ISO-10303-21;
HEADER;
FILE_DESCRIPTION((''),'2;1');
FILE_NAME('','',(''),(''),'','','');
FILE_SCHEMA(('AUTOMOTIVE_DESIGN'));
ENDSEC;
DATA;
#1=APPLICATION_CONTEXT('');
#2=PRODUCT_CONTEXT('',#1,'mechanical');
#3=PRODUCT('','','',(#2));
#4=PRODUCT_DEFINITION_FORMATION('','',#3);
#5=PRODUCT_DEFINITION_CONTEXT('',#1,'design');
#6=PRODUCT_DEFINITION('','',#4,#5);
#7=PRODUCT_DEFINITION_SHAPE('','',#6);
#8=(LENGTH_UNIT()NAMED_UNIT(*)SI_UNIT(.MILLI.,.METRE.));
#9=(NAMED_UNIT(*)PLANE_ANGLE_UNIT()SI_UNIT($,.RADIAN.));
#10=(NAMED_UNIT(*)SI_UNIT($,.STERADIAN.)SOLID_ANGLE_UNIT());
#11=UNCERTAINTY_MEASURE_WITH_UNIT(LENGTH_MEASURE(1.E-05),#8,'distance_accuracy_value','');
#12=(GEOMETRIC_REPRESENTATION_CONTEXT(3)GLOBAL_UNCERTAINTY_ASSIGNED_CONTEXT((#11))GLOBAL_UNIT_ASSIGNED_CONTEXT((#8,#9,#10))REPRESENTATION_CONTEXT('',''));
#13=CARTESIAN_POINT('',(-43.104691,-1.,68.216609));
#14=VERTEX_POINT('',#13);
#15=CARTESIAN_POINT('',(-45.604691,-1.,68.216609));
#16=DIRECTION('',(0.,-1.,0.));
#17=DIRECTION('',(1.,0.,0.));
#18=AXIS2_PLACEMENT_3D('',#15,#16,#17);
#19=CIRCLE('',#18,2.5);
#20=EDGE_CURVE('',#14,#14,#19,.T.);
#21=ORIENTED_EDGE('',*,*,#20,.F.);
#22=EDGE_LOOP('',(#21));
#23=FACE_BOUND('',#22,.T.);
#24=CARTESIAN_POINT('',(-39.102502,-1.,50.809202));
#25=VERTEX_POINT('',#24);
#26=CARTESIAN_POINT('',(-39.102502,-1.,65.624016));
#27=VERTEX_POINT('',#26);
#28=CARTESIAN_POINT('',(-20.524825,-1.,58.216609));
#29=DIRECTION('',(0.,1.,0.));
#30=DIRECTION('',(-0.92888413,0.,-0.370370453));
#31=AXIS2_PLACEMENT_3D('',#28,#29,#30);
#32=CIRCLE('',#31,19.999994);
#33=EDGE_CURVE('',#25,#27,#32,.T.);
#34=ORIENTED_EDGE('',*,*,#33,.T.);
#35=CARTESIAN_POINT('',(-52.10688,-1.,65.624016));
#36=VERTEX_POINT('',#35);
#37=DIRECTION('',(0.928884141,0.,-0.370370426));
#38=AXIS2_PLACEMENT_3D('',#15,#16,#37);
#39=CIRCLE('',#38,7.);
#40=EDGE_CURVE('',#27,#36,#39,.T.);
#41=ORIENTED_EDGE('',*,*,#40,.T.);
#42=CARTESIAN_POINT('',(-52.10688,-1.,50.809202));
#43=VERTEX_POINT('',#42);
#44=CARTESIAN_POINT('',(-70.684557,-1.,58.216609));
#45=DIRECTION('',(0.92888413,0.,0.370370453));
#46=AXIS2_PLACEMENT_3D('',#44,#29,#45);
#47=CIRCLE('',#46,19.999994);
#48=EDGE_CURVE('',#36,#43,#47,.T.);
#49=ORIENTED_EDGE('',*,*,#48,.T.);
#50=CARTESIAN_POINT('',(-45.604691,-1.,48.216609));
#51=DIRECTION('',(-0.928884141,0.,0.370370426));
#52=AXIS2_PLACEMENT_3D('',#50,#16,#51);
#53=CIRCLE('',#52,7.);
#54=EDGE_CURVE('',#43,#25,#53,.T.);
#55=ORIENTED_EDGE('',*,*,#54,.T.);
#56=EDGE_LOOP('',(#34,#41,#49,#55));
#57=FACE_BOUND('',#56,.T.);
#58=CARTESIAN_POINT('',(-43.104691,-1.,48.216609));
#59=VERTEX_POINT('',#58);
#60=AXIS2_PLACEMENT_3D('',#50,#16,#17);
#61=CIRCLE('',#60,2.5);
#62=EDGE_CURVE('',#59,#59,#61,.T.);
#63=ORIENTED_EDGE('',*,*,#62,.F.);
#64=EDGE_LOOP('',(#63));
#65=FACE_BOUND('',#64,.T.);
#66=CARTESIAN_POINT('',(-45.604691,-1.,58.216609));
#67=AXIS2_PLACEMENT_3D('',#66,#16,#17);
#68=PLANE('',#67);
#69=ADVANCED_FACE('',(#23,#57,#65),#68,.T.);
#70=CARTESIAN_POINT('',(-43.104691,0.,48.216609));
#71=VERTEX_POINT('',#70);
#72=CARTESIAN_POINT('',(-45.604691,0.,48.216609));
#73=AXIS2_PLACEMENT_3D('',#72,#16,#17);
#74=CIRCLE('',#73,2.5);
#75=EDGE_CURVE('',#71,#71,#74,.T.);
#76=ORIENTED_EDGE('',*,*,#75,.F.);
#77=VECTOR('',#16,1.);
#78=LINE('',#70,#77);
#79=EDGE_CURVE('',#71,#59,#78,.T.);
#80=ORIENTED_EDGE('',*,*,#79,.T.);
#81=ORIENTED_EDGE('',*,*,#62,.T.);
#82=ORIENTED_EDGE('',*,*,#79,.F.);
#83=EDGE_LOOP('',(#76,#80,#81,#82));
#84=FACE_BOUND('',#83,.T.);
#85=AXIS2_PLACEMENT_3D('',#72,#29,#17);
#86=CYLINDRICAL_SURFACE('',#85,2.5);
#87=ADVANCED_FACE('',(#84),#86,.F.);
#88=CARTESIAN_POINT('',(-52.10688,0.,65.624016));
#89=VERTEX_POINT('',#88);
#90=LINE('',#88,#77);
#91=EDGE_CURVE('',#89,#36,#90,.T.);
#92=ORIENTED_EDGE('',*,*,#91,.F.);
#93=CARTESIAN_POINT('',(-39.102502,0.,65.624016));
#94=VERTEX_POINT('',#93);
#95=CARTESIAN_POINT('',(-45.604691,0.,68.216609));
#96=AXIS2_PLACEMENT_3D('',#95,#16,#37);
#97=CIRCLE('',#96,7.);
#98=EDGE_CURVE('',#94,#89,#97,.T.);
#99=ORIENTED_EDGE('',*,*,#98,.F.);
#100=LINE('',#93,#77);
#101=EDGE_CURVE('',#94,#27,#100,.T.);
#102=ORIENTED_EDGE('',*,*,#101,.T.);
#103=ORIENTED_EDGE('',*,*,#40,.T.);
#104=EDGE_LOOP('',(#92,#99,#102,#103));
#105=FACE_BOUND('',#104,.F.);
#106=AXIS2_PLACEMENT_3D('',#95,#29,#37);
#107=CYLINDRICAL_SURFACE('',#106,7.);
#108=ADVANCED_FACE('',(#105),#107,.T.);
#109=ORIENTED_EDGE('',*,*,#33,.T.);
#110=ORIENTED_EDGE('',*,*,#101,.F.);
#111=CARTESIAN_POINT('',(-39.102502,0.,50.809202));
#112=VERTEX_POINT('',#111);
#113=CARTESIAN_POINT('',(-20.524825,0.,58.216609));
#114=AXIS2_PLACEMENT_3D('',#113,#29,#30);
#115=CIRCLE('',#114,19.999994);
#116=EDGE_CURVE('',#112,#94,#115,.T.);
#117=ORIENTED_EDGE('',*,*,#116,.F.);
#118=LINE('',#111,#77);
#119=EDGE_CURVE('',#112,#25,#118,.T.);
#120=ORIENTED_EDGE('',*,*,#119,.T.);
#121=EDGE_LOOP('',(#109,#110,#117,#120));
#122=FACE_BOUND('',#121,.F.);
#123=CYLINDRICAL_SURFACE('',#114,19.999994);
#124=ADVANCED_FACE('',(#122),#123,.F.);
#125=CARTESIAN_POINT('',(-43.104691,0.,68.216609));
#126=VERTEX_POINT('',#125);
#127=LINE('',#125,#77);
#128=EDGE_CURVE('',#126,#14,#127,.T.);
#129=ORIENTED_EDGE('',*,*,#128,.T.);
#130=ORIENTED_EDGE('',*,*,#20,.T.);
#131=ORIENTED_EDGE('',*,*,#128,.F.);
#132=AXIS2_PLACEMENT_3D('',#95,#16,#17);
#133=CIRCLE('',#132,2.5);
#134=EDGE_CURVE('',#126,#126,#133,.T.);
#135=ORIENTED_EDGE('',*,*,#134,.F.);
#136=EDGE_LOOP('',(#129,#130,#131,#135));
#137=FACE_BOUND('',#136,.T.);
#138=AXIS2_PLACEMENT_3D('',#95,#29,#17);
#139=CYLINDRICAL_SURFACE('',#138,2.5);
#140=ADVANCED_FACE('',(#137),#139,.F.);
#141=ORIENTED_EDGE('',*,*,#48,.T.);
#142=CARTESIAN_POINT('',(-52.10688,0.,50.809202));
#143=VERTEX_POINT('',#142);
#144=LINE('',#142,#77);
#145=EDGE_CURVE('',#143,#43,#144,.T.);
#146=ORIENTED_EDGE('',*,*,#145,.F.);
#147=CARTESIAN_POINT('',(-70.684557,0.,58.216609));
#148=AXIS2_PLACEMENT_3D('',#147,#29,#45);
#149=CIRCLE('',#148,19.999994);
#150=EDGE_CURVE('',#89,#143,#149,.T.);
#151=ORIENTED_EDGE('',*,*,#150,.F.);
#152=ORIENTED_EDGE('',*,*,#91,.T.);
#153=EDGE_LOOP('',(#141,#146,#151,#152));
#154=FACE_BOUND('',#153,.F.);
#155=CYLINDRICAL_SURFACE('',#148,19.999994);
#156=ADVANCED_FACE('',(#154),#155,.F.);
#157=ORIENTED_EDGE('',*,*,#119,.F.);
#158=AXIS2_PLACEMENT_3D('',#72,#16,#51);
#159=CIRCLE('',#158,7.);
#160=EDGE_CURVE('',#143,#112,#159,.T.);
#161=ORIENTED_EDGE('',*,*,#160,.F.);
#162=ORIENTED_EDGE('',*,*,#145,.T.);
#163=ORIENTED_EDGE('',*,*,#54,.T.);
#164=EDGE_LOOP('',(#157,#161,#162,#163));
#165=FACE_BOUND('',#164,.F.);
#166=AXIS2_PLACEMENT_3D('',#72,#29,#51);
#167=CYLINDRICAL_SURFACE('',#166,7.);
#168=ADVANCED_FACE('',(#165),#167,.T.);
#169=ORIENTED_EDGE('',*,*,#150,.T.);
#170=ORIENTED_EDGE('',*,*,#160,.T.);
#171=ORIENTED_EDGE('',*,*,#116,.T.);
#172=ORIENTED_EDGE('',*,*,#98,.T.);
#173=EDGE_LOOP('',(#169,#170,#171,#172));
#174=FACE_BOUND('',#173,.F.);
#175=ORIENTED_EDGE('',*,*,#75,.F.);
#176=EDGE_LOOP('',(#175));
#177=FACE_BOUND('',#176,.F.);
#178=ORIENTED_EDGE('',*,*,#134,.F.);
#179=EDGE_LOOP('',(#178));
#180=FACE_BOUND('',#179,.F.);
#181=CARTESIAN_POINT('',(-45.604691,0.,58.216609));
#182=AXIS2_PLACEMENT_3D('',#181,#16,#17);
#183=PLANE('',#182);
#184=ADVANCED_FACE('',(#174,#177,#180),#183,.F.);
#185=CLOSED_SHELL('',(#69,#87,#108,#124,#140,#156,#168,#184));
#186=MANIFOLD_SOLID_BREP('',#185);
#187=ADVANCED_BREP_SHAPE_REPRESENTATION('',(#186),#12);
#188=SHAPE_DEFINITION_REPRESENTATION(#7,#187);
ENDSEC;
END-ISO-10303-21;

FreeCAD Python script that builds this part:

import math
import FreeCAD as App
import Part
import Sketcher

doc = App.newDocument("Part")
body = doc.addObject("PartDesign::Body", "Body")

sketch1 = body.newObject("Sketcher::SketchObject", "Sketch")
sketch1.AttachmentSupport = (doc.getObject("XZ_Plane"), [""])
sketch1.MapMode = "FlatFace"
sketch1.addGeometry([
    Part.ArcOfCircle(Part.Circle(App.Vector(-20.5, 58.2, 0), App.Vector(0, 0, 1), 20), math.radians(158), math.radians(202)),
    Part.ArcOfCircle(Part.Circle(App.Vector(-45.6, 68.2, 0), App.Vector(0, 0, 1), 7), math.radians(-22), math.radians(202)),
    Part.ArcOfCircle(Part.Circle(App.Vector(-70.7, 58.2, 0), App.Vector(0, 0, 1), 20), math.radians(-22), math.radians(22)),
    Part.ArcOfCircle(Part.Circle(App.Vector(-45.6, 48.2, 0), App.Vector(0, 0, 1), 7), math.radians(158), math.radians(382)),
    Part.Circle(App.Vector(-45.6, 48.2, 0), App.Vector(0, 0, 1), 2.5),
    Part.Circle(App.Vector(-45.6, 68.2, 0), App.Vector(0, 0, 1), 2.5),
], False)
sketch1.addConstraint([
    Sketcher.Constraint("Tangent", 0, 1, 1, 1),
    Sketcher.Constraint("Tangent", 1, 2, 2, 2),
    Sketcher.Constraint("Tangent", 2, 1, 3, 1),
    Sketcher.Constraint("Tangent", 3, 2, 0, 2),
    Sketcher.Constraint("Coincident", 4, 3, 3, 3),
    Sketcher.Constraint("Coincident", 5, 3, 1, 3),
    Sketcher.Constraint("Equal", 0, 2),
    Sketcher.Constraint("Equal", 1, 3),
    Sketcher.Constraint("Equal", 4, 5),
    Sketcher.Constraint("Horizontal", 0, 3, 2, 3),
    Sketcher.Constraint("Diameter", 4, 5.0),
    Sketcher.Constraint("Radius", 1, 7.0),
    Sketcher.Constraint("DistanceY", 0, 3, 1, 3, 10.0),
    Sketcher.Constraint("Radius", 0, 19.999994),
    Sketcher.Constraint("DistanceY", -1, 1, 2, 1, 50.809202),
    Sketcher.Constraint("DistanceX", 1, 3, -1, 1, 45.604691),
])
pad1 = body.newObject("PartDesign::Pad", "Pad")
pad1.Profile = sketch1
pad1.Length = 1

doc.recompute()
